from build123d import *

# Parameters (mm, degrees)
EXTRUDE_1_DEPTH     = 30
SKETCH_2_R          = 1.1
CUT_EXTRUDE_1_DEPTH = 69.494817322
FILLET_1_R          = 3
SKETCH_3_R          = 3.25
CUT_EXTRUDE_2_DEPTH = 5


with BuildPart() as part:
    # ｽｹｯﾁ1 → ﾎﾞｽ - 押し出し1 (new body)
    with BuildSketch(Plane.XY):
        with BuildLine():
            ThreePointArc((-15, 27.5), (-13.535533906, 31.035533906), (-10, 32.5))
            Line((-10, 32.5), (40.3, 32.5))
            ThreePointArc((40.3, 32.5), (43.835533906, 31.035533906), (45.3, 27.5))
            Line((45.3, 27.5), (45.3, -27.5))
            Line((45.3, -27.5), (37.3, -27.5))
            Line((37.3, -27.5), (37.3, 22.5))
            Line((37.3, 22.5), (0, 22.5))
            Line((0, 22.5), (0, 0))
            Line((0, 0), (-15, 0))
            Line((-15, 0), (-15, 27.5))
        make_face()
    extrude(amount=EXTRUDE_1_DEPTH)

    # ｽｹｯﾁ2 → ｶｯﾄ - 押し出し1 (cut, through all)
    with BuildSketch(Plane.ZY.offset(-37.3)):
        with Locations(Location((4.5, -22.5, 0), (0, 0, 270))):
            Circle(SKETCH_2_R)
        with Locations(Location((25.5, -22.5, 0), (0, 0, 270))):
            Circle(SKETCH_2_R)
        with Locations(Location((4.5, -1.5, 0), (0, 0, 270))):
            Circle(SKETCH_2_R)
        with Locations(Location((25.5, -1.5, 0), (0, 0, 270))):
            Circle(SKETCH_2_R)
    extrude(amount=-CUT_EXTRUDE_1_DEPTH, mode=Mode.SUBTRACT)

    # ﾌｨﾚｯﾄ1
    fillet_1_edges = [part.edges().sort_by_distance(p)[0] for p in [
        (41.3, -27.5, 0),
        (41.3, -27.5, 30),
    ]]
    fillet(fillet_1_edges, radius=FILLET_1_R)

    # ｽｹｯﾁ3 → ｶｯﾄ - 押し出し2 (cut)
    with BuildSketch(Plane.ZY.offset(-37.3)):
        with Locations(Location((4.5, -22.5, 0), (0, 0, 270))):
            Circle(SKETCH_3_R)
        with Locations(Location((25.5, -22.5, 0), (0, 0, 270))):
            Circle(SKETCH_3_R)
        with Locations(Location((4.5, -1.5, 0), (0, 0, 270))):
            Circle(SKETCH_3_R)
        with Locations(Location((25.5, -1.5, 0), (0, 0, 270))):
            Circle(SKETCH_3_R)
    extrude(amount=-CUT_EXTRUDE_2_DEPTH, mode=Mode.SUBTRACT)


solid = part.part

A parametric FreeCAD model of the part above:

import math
import FreeCAD as App
import Part
import Sketcher

V = App.Vector


def edges_at(feature, points):
    """Names of the edges that pass closest to the given points."""
    edges = feature.Shape.Edges
    near = lambda p: min(range(len(edges)), key=lambda i: edges[i].distToShape(Part.Vertex(*p))[0])
    return sorted({f"Edge{near(p) + 1}" for p in points})

doc = App.newDocument("Part")
body = doc.addObject("PartDesign::Body", "Body")

sketch1 = body.newObject("Sketcher::SketchObject", "Sketch")
sketch1.AttachmentSupport = (doc.getObject("XY_Plane"), [""])
sketch1.MapMode = "FlatFace"
sketch1.addGeometry([
    Part.ArcOfCircle(Part.Circle(V(-10, 28, 0), V(0, 0, 1), 5), math.radians(90), math.radians(180)),
    Part.LineSegment(V(-15, 28, 0), V(-15, 0, 0)),
    Part.LineSegment(V(-15, 0, 0), V(0, 0, 0)),
    Part.LineSegment(V(0, 0, 0), V(0, 22, 0)),
    Part.LineSegment(V(0, 22, 0), V(37, 22, 0)),
    Part.LineSegment(V(37, 22, 0), V(37, -28, 0)),
    Part.LineSegment(V(37, -28, 0), V(45, -28, 0)),
    Part.LineSegment(V(45, -28, 0), V(45, 28, 0)),
    Part.ArcOfCircle(Part.Circle(V(40, 28, 0), V(0, 0, 1), 5), math.radians(0), math.radians(90)),
    Part.LineSegment(V(40, 32, 0), V(-10, 32, 0)),
], False)
sketch1.addConstraint([
    Sketcher.Constraint("Tangent", 0, 2, 1, 1),
    Sketcher.Constraint("Coincident", 1, 2, 2, 1),
    Sketcher.Constraint("Coincident", 2, 2, 3, 1),
    Sketcher.Constraint("Coincident", 3, 2, 4, 1),
    Sketcher.Constraint("Coincident", 4, 2, 5, 1),
    Sketcher.Constraint("Coincident", 5, 2, 6, 1),
    Sketcher.Constraint("Coincident", 6, 2, 7, 1),
    Sketcher.Constraint("Tangent", 7, 2, 8, 1),
    Sketcher.Constraint("Tangent", 8, 2, 9, 1),
    Sketcher.Constraint("Tangent", 9, 2, 0, 1),
    Sketcher.Constraint("Vertical", 1),
    Sketcher.Constraint("Horizontal", 2),
    Sketcher.Constraint("Vertical", 3),
    Sketcher.Constraint("Horizontal", 4),
    Sketcher.Constraint("Vertical", 5),
    Sketcher.Constraint("Horizontal", 6),
    Sketcher.Constraint("Vertical", 7),
    Sketcher.Constraint("Horizontal", 9),
    Sketcher.Constraint("Coincident", 2, 2, -1, 1),
    Sketcher.Constraint("Equal", 0, 8),
    Sketcher.Constraint("Radius", 0, 5.0),
    Sketcher.Constraint("DistanceX", 2, 1, 2, 2, 15.0),
    Sketcher.Constraint("DistanceX", 6, 1, 6, 2, 8.0),
    Sketcher.Constraint("DistanceY", 5, 2, 5, 1, 50.0),
    Sketcher.Constraint("DistanceY", 7, 1, 7, 2, 55.0),
    Sketcher.Constraint("DistanceX", 4, 1, 4, 2, 37.3),
    Sketcher.Constraint("DistanceY", 1, 2, 1, 1, 27.5),
])
pad1 = body.newObject("PartDesign::Pad", "Pad")
pad1.Profile = sketch1
pad1.Length = 30

sketch2 = body.newObject("Sketcher::SketchObject", "Sketch001")
sketch2.AttachmentSupport = (doc.getObject("YZ_Plane"), [""])
sketch2.MapMode = "FlatFace"
sketch2.AttachmentOffset = App.Placement(V(0, 0, 37.3), App.Rotation())
sketch2.addGeometry([
    Part.Circle(V(-22.5, 4.5, 0), V(0, 0, 1), 1.1),
    Part.Circle(V(-22.5, 25.5, 0), V(0, 0, 1), 1.1),
    Part.Circle(V(-1.5, 4.5, 0), V(0, 0, 1), 1.1),
    Part.Circle(V(-1.5, 25.5, 0), V(0, 0, 1), 1.1),
], False)
sketch2.addConstraint([
    Sketcher.Constraint("Equal", 0, 1),
    Sketcher.Constraint("Equal", 1, 2),
    Sketcher.Constraint("Equal", 2, 3),
    Sketcher.Constraint("Horizontal", 0, 3, 2, 3),
    Sketcher.Constraint("Horizontal", 1, 3, 3, 3),
    Sketcher.Constraint("Vertical", 0, 3, 1, 3),
    Sketcher.Constraint("Vertical", 2, 3, 3, 3),
    Sketcher.Constraint("Diameter", 0, 2.2),
    Sketcher.Constraint("DistanceY", 0, 3, 1, 3, 21.0),
    Sketcher.Constraint("DistanceX", 0, 3, 2, 3, 21.0),
    Sketcher.Constraint("DistanceX", 0, 3, -1, 1, 22.5),
    Sketcher.Constraint("DistanceY", -1, 1, 0, 3, 4.5),
])
pocket1 = body.newObject("PartDesign::Pocket", "Pocket")
pocket1.Profile = sketch2
pocket1.Type = "ThroughAll"
pocket1.Reversed = True
doc.recompute()

fillet = body.newObject("PartDesign::Fillet", "Fillet")
fillet.Base = (pocket1, edges_at(pocket1, [(41.3, -27.5, 0), (41.3, -27.5, 30)]))
fillet.Radius = 3

sketch3 = body.newObject("Sketcher::SketchObject", "Sketch002")
sketch3.AttachmentSupport = (doc.getObject("YZ_Plane"), [""])
sketch3.MapMode = "FlatFace"
sketch3.AttachmentOffset = App.Placement(V(0, 0, 37.3), App.Rotation())
sketch3.addGeometry([
    Part.Circle(V(-22.5, 4.5, 0), V(0, 0, 1), 3.2),
    Part.Circle(V(-22.5, 25.5, 0), V(0, 0, 1), 3.2),
    Part.Circle(V(-1.5, 4.5, 0), V(0, 0, 1), 3.2),
    Part.Circle(V(-1.5, 25.5, 0), V(0, 0, 1), 3.2),
], False)
sketch3.addConstraint([
    Sketcher.Constraint("Equal", 0, 1),
    Sketcher.Constraint("Equal", 1, 2),
    Sketcher.Constraint("Equal", 2, 3),
    Sketcher.Constraint("Horizontal", 0, 3, 2, 3),
    Sketcher.Constraint("Horizontal", 1, 3, 3, 3),
    Sketcher.Constraint("Vertical", 0, 3, 1, 3),
    Sketcher.Constraint("Vertical", 2, 3, 3, 3),
    Sketcher.Constraint("Diameter", 0, 6.5),
    Sketcher.Constraint("DistanceY", 0, 3, 1, 3, 21.0),
    Sketcher.Constraint("DistanceX", 0, 3, 2, 3, 21.0),
    Sketcher.Constraint("DistanceX", 0, 3, -1, 1, 22.5),
    Sketcher.Constraint("DistanceY", -1, 1, 0, 3, 4.5),
])
pocket2 = body.newObject("PartDesign::Pocket", "Pocket001")
pocket2.Profile = sketch3
pocket2.Length = 5
pocket2.Reversed = True

doc.recompute()
